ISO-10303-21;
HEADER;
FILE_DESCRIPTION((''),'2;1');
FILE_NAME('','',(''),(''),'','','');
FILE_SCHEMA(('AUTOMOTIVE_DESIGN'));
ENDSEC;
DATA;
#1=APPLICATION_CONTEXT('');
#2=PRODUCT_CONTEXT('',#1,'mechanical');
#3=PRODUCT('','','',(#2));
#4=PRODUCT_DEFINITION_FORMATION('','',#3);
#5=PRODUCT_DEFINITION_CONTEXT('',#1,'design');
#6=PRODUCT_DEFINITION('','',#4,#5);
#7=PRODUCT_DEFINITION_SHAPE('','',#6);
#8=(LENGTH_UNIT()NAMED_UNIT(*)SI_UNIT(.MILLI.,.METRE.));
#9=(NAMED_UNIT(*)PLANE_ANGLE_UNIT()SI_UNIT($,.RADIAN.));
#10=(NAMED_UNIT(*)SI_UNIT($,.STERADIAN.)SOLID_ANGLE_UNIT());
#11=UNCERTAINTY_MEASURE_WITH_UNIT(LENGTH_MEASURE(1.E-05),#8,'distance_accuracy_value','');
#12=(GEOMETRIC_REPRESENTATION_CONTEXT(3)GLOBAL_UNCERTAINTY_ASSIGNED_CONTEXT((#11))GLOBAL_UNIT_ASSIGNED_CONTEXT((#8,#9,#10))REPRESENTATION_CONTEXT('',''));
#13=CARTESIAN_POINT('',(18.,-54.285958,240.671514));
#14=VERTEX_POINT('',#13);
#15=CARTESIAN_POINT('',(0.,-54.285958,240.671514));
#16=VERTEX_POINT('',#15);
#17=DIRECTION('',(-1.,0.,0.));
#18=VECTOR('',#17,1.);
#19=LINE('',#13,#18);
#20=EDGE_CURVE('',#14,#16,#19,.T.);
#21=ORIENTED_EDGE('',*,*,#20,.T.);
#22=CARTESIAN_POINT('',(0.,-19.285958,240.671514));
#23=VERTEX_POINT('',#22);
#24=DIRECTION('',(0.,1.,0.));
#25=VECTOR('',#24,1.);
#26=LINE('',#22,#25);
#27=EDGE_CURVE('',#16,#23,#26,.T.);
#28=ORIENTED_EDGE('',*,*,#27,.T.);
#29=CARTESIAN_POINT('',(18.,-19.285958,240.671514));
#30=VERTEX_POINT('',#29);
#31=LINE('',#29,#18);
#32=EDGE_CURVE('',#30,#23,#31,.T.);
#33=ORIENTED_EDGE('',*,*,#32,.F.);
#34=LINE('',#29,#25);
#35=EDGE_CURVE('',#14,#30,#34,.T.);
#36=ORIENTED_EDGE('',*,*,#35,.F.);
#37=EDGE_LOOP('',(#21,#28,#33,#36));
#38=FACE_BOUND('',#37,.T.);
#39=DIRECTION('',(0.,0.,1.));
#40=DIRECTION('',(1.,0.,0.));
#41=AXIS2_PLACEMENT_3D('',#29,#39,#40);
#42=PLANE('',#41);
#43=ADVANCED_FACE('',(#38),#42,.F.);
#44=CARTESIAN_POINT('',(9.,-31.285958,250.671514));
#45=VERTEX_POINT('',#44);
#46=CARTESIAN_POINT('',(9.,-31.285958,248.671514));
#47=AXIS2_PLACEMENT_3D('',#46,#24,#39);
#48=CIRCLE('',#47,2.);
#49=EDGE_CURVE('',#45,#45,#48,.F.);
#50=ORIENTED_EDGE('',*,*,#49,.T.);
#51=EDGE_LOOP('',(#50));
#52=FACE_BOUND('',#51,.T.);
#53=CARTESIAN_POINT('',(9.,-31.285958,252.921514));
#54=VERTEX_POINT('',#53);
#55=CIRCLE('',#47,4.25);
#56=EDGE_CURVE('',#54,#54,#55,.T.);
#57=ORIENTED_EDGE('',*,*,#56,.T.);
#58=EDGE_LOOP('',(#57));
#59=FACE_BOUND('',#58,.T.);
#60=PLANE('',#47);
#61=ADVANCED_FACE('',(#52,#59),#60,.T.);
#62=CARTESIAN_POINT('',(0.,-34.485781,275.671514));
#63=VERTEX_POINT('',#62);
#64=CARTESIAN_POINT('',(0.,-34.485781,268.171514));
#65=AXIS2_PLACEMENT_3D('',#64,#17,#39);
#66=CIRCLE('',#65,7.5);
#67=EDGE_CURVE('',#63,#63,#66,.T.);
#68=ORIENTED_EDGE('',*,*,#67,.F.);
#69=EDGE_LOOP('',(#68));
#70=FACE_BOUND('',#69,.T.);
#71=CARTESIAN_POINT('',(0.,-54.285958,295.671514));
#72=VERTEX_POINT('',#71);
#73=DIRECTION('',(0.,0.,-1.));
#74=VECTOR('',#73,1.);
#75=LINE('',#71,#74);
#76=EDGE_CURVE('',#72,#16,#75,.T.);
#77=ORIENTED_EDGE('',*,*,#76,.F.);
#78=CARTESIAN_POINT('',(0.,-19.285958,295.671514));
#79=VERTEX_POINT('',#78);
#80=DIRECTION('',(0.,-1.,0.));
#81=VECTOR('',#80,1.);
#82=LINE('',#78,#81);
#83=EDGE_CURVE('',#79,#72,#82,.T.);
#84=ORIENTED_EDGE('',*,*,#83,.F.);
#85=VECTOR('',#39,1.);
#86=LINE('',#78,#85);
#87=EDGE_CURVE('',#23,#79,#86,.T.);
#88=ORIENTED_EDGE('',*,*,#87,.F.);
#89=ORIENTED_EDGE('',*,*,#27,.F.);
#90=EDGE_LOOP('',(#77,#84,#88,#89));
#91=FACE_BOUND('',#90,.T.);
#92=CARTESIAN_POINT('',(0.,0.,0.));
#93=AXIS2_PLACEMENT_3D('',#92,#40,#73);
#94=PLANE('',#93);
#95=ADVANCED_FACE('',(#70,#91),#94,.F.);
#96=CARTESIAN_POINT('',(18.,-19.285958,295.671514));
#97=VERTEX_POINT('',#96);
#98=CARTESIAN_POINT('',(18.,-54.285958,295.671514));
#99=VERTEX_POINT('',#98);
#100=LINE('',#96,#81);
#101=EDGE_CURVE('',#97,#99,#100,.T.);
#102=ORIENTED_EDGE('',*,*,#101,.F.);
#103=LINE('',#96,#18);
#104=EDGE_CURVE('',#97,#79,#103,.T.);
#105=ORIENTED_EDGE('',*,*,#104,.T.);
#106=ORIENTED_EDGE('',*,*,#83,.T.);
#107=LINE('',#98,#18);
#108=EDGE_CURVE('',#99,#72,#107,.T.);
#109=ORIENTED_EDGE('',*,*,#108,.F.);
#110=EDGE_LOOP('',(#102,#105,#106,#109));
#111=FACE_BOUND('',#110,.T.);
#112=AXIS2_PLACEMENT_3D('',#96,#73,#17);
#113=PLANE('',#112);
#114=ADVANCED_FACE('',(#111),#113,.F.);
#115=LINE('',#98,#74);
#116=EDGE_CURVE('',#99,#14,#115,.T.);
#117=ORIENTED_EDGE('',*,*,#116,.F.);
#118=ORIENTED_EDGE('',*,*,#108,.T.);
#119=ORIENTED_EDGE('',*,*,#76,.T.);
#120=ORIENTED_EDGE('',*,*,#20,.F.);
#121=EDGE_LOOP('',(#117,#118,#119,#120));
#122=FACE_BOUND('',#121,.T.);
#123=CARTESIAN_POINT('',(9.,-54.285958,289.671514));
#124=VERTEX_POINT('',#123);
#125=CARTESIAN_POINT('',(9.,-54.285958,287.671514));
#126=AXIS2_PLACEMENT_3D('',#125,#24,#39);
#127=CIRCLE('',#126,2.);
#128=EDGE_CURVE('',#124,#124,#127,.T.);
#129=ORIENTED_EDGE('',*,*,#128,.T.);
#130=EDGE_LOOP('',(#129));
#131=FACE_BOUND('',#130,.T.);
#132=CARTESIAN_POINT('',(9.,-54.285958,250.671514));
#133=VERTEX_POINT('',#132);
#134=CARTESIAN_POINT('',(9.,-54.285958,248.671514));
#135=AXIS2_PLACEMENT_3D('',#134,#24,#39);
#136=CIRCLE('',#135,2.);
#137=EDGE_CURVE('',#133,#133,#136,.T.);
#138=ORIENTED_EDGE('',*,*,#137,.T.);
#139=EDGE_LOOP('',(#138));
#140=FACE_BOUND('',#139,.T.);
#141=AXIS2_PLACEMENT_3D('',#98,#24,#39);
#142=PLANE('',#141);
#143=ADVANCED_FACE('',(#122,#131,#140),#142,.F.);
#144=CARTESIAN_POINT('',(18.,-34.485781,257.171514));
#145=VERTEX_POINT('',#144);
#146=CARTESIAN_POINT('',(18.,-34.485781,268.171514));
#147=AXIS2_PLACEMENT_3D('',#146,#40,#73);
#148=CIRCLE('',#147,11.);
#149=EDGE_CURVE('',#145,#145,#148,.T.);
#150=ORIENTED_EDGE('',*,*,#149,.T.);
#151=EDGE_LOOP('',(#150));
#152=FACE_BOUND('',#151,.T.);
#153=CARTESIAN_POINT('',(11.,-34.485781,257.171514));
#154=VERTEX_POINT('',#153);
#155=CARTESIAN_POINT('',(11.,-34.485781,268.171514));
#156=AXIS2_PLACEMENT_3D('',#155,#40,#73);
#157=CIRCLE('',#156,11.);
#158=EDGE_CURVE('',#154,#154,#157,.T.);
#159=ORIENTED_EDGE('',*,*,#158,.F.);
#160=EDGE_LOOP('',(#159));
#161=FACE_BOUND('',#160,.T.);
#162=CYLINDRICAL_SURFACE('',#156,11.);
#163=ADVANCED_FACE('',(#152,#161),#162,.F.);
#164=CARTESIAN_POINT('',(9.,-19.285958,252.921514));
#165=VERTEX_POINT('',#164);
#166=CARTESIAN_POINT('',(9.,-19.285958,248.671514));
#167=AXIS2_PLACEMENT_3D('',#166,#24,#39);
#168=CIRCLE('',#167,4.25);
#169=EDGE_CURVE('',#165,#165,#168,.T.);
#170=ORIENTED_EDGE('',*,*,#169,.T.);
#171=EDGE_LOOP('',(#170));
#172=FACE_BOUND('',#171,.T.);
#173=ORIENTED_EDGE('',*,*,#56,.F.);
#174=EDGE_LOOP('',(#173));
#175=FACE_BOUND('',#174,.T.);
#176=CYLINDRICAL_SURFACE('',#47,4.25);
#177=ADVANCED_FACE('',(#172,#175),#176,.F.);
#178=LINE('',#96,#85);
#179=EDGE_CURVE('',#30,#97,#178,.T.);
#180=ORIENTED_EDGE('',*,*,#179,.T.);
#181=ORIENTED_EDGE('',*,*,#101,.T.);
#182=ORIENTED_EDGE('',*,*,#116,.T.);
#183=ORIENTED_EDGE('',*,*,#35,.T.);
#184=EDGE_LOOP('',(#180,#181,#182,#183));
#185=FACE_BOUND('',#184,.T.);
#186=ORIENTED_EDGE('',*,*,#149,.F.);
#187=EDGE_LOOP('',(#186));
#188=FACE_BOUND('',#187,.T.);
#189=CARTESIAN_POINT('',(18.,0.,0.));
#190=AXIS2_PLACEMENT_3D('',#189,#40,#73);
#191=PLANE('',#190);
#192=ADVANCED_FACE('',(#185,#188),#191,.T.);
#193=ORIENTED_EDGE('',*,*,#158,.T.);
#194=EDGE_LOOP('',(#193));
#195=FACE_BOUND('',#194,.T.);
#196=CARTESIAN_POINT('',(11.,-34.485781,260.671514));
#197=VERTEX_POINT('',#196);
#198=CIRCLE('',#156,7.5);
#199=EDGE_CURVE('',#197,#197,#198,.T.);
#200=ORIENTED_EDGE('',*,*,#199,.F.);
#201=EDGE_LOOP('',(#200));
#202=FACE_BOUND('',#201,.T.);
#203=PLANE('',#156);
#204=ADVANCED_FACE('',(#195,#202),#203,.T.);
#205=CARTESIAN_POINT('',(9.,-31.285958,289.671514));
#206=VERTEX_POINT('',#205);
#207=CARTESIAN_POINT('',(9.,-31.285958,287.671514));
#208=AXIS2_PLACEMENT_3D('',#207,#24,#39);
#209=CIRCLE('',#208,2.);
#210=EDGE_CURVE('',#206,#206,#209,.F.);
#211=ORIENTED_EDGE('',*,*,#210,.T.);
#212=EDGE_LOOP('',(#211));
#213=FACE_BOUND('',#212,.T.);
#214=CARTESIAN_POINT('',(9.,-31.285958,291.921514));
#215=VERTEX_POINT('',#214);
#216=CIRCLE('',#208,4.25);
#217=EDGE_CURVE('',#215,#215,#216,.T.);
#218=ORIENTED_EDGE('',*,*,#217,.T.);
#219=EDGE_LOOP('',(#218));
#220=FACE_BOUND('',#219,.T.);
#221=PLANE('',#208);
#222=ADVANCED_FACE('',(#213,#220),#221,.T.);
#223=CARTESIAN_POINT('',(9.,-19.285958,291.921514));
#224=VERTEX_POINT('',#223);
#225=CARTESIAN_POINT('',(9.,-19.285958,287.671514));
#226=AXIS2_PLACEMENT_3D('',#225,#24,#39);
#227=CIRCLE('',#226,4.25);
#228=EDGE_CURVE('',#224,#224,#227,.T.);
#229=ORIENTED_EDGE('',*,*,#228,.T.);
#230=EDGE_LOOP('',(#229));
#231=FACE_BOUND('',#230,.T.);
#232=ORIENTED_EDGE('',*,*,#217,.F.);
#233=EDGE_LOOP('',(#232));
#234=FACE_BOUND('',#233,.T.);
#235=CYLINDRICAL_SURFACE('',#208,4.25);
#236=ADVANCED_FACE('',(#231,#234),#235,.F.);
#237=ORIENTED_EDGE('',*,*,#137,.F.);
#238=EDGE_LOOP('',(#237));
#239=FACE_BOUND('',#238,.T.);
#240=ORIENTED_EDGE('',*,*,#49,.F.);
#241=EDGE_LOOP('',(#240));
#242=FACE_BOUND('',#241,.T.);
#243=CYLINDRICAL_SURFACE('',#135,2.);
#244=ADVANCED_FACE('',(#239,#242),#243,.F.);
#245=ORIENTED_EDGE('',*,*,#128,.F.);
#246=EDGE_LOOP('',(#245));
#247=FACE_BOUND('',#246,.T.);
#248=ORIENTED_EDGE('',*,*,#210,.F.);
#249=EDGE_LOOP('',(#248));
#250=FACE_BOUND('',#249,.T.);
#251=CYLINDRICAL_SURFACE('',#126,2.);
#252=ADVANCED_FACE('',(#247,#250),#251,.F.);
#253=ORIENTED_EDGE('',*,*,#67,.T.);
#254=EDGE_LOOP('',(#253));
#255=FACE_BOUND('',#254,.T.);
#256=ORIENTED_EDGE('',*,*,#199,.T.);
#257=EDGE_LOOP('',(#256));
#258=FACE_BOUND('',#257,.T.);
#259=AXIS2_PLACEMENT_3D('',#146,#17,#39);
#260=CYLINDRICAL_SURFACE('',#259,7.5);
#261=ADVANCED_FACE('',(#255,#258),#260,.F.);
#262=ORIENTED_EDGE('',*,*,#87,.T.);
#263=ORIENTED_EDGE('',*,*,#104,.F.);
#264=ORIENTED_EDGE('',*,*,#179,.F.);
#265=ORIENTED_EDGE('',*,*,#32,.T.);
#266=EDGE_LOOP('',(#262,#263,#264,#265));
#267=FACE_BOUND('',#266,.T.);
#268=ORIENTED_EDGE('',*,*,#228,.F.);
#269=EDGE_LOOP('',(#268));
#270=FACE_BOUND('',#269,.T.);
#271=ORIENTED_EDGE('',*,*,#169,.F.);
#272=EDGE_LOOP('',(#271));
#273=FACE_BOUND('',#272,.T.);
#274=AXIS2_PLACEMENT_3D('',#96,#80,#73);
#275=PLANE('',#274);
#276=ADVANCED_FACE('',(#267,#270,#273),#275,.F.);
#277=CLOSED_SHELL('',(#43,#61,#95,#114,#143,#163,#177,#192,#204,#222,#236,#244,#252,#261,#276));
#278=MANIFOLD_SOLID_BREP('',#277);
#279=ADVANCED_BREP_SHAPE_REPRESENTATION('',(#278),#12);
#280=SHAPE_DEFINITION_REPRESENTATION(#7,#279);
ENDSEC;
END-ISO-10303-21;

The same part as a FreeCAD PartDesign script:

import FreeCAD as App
import Part
import Sketcher
from FreeCAD import Vector
Q = App.Units.Quantity


def add_polygon(sketch, points):
    """Adds a closed chain of lines whose ends are joined by coincident constraints."""
    first, n = sketch.GeometryCount, len(points)
    for a, b in zip(points, points[1:] + points[:1]):
        sketch.addGeometry(Part.LineSegment(App.Vector(*a, 0), App.Vector(*b, 0)), False)
    for i in range(n):
        sketch.addConstraint(Sketcher.Constraint("Coincident", first + i, 2, first + (i + 1) % n, 1))

doc = App.newDocument("Part")
body = doc.addObject("PartDesign::Body", "Body")

# Sketch on YZ plane
sketch1 = body.newObject("Sketcher::SketchObject", "Sketch")
sketch1.AttachmentSupport = (doc.getObject("YZ_Plane"), [""])
sketch1.MapMode = "FlatFace"
add_polygon(sketch1, [(-19, 296), (-54, 296), (-54, 241), (-19, 241)])  # lines 0-3
sketch1.addConstraint([
    Sketcher.Constraint("Horizontal", 0),
    Sketcher.Constraint("Vertical", 1),
    Sketcher.Constraint("Horizontal", 2),
    Sketcher.Constraint("Vertical", 3),
    Sketcher.Constraint("DistanceX", 0, 2, 0, 1, Q("35 mm")),
    Sketcher.Constraint("DistanceY", 1, 2, 1, 1, Q("55 mm")),
    Sketcher.Constraint("DistanceX", 0, 2, -1, 1, Q("54.285958 mm")),
    Sketcher.Constraint("DistanceY", -1, 1, 0, 2, Q("295.671514 mm")),
])
pad1 = body.newObject("PartDesign::Pad", "Pad")
pad1.Profile = sketch1
pad1.Length = 18

# Sketch on YZ plane
sketch2 = body.newObject("Sketcher::SketchObject", "Sketch001")
sketch2.AttachmentSupport = (doc.getObject("YZ_Plane"), [""])
sketch2.MapMode = "FlatFace"
sketch2.AttachmentOffset = App.Placement(Vector(0, 0, 18), App.Rotation())
sketch2.addGeometry(Part.Circle(Vector(-34, 268, 0), Vector(0, 0, 1), 11), False)
sketch2.addConstraint([
    Sketcher.Constraint("Diameter", 0, Q("22 mm")),
    Sketcher.Constraint("DistanceX", 0, 3, -1, 1, Q("34.485781 mm")),
    Sketcher.Constraint("DistanceY", -1, 1, 0, 3, Q("268.171514 mm")),
])
pocket1 = body.newObject("PartDesign::Pocket", "Pocket")
pocket1.Profile = sketch2
pocket1.Length = 7

# Sketch on YZ plane
sketch3 = body.newObject("Sketcher::SketchObject", "Sketch002")
sketch3.AttachmentSupport = (doc.getObject("YZ_Plane"), [""])
sketch3.MapMode = "FlatFace"
sketch3.addGeometry(Part.Circle(Vector(-34, 268, 0), Vector(0, 0, 1), 8), False)
sketch3.addConstraint([
    Sketcher.Constraint("Diameter", 0, Q("15 mm")),
    Sketcher.Constraint("DistanceX", 0, 3, -1, 1, Q("34.485781 mm")),
    Sketcher.Constraint("DistanceY", -1, 1, 0, 3, Q("268.171514 mm")),
])
pocket2 = body.newObject("PartDesign::Pocket", "Pocket001")
pocket2.Profile = sketch3
pocket2.Type = "ThroughAll"
pocket2.Reversed = True

# Sketch on XZ plane
sketch4 = body.newObject("Sketcher::SketchObject", "Sketch003")
sketch4.AttachmentSupport = (doc.getObject("XZ_Plane"), [""])
sketch4.MapMode = "FlatFace"
sketch4.AttachmentOffset = App.Placement(Vector(0, 0, 19.285958), App.Rotation())
sketch4.addGeometry([
    Part.Circle(Vector(9, 287.7, 0), Vector(0, 0, 1), 2),
    Part.Circle(Vector(9, 248.7, 0), Vector(0, 0, 1), 2),
], False)
sketch4.addConstraint([
    Sketcher.Constraint("Equal", 0, 1),
    Sketcher.Constraint("Vertical", 0, 3, 1, 3),
    Sketcher.Constraint("Diameter", 0, Q("4 mm")),
    Sketcher.Constraint("DistanceX", -1, 1, 0, 3, Q("9 mm")),
    Sketcher.Constraint("DistanceY", 1, 3, 0, 3, Q("39 mm")),
    Sketcher.Constraint("DistanceY", -1, 1, 0, 3, Q("287.671514 mm")),
])
pocket3 = body.newObject("PartDesign::Pocket", "Pocket002")
pocket3.Profile = sketch4
pocket3.Type = "ThroughAll"
pocket3.Reversed = True

# Sketch on XZ plane
sketch5 = body.newObject("Sketcher::SketchObject", "Sketch004")
sketch5.AttachmentSupport = (doc.getObject("XZ_Plane"), [""])
sketch5.MapMode = "FlatFace"
sketch5.AttachmentOffset = App.Placement(Vector(0, 0, 19.285958), App.Rotation())
sketch5.addGeometry([
    Part.Circle(Vector(9, 287.7, 0), Vector(0, 0, 1), 4.2),
    Part.Circle(Vector(9, 248.7, 0), Vector(0, 0, 1), 4.2),
], False)
sketch5.addConstraint([
    Sketcher.Constraint("Equal", 0, 1),
    Sketcher.Constraint("Vertical", 0, 3, 1, 3),
    Sketcher.Constraint("Diameter", 0, Q("8.5 mm")),
    Sketcher.Constraint("DistanceX", -1, 1, 0, 3, Q("9 mm")),
    Sketcher.Constraint("DistanceY", 1, 3, 0, 3, Q("39 mm")),
    Sketcher.Constraint("DistanceY", -1, 1, 0, 3, Q("287.671514 mm")),
])
pocket4 = body.newObject("PartDesign::Pocket", "Pocket003")
pocket4.Profile = sketch5
pocket4.Length = 12
pocket4.Reversed = True

doc.recompute()
